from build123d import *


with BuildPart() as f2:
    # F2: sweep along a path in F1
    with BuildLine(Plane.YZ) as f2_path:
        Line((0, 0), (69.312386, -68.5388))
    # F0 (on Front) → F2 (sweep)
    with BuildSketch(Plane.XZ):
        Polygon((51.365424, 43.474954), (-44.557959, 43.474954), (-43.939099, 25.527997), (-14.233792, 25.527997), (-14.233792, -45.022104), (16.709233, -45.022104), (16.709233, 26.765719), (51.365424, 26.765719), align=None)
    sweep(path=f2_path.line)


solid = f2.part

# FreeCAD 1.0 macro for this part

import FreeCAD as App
import Part
import Sketcher
Q = App.Units.Quantity


def add_polygon(sketch, points):
    """Adds a closed chain of lines whose ends are joined by coincident constraints."""
    first, n = sketch.GeometryCount, len(points)
    for a, b in zip(points, points[1:] + points[:1]):
        sketch.addGeometry(Part.LineSegment(App.Vector(*a, 0), App.Vector(*b, 0)), False)
    for i in range(n):
        sketch.addConstraint(Sketcher.Constraint("Coincident", first + i, 2, first + (i + 1) % n, 1))

doc = App.newDocument("Part")
body = doc.addObject("PartDesign::Body", "Body")

# Sketch on XZ plane
sketch1 = body.newObject("Sketcher::SketchObject", "Sketch")
sketch1.AttachmentSupport = (doc.getObject("XZ_Plane"), [""])
sketch1.MapMode = "FlatFace"
add_polygon(sketch1, [(51, 43), (-45, 43), (-44, 26), (-14, 26), (-14, -45), (17, -45), (17, 27), (51, 27)])  # lines 0-7
sketch1.addConstraint([
    Sketcher.Constraint("Horizontal", 0),
    Sketcher.Constraint("Horizontal", 2),
    Sketcher.Constraint("Vertical", 3),
    Sketcher.Constraint("Horizontal", 4),
    Sketcher.Constraint("Vertical", 5),
    Sketcher.Constraint("Horizontal", 6),
    Sketcher.Constraint("Vertical", 7),
    Sketcher.Constraint("DistanceY", 3, 2, 3, 1, Q("70.550101 mm")),
    Sketcher.Constraint("DistanceX", 6, 1, 6, 2, Q("34.656191 mm")),
    Sketcher.Constraint("DistanceX", 1, 2, -1, 1, Q("43.939099 mm")),
    Sketcher.Constraint("DistanceX", 0, 2, 0, 1, Q("95.923383 mm")),
    Sketcher.Constraint("DistanceX", 2, 1, 2, 2, Q("29.705307 mm")),
    Sketcher.Constraint("DistanceX", 4, 1, 4, 2, Q("30.943025 mm")),
    Sketcher.Constraint("DistanceY", 5, 1, 5, 2, Q("71.787823 mm")),
    Sketcher.Constraint("DistanceY", 7, 1, 7, 2, Q("16.709235 mm")),
    Sketcher.Constraint("DistanceY", -1, 1, 5, 2, Q("26.765719 mm")),
])

# Sketch on an angled plane
sketch2 = body.newObject("Sketcher::SketchObject", "Sketch001")
sketch2.Placement = App.Placement(App.Vector(0, 0, 0), App.Rotation(App.Vector(0, 0.711063689, -0.703127605), App.Vector(0.999999999, 0, 0), App.Vector(0, -0.703127605, -0.711063689), "ZXY"))
sketch2.addGeometry(Part.LineSegment(App.Vector(0, 0, 0), App.Vector(97, 0, 0)), False)
sketch2.addConstraint([
    Sketcher.Constraint("Horizontal", 0),
    Sketcher.Constraint("Coincident", 0, 1, -1, 1),
    Sketcher.Constraint("DistanceX", 0, 1, 0, 2, Q("97.477043 mm")),
])
doc.recompute()

additivepipe = body.newObject("PartDesign::AdditivePipe", "AdditivePipe")
additivepipe.Profile = sketch1
additivepipe.Spine = (sketch2, ["Edge1"])

doc.recompute()
